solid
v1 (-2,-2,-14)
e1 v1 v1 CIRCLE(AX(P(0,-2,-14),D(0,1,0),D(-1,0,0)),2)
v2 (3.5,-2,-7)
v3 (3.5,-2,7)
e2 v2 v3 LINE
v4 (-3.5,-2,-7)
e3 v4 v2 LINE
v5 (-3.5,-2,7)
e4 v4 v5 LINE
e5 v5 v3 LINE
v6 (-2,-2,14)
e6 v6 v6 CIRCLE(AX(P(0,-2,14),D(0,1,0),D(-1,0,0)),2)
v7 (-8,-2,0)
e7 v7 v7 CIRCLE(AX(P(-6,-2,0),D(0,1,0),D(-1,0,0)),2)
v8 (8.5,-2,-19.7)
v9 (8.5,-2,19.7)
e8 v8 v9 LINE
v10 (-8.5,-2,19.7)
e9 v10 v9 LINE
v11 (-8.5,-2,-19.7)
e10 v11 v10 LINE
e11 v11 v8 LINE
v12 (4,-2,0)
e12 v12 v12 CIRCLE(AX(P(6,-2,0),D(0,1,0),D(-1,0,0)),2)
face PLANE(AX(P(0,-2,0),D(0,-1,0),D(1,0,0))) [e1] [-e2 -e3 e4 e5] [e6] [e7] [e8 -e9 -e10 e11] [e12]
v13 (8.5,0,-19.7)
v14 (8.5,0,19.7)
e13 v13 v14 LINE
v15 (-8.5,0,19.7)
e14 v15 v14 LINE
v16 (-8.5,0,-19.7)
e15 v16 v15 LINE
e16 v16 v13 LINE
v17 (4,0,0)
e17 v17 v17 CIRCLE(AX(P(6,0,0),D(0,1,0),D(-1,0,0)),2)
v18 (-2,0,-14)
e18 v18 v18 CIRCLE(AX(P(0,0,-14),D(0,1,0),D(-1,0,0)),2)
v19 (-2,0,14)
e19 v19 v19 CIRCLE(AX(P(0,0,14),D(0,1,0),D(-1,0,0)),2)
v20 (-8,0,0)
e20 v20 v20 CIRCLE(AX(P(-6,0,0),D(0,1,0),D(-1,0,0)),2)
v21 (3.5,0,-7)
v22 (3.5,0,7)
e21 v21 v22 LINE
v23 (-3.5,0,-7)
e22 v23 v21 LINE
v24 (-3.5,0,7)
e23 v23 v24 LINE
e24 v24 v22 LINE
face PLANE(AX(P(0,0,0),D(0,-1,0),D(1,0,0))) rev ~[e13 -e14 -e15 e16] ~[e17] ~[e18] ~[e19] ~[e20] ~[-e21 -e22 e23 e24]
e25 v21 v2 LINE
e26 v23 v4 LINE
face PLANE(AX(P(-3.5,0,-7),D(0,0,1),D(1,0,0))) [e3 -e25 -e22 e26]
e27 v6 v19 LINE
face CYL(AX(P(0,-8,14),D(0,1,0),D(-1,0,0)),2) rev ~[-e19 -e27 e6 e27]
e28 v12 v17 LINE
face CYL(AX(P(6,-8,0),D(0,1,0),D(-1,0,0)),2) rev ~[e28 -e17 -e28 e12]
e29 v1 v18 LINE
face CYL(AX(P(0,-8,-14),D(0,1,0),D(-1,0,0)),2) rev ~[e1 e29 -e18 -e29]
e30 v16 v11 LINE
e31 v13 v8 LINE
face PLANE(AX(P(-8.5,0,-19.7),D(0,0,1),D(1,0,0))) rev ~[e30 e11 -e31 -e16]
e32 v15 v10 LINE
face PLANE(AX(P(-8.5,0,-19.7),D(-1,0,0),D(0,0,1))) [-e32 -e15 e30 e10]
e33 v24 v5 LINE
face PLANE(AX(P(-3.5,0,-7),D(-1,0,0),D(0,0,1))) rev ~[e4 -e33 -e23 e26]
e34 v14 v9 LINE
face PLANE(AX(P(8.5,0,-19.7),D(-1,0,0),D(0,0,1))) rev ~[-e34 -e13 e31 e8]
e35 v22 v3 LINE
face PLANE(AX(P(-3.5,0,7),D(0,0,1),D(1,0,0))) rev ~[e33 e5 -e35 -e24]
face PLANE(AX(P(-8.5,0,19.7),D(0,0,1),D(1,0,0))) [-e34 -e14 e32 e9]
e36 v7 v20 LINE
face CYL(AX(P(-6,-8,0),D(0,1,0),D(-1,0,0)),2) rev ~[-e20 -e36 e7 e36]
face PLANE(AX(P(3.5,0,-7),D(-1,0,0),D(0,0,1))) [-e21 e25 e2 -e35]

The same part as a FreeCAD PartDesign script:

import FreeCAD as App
import Part
import Sketcher
from FreeCAD import Vector
Q = App.Units.Quantity

doc = App.newDocument("Part")
body = doc.addObject("PartDesign::Body", "Body")

# Sketch on XZ plane
sketch1 = body.newObject("Sketcher::SketchObject", "Sketch")
sketch1.AttachmentSupport = (doc.getObject("XZ_Plane"), [""])
sketch1.MapMode = "FlatFace"
sketch1.addGeometry([
    Part.LineSegment(Vector(-8.5, 19.7, 0), Vector(-8.5, -19.7, 0)),  # 0
    Part.LineSegment(Vector(-8.5, -19.7, 0), Vector(8.5, -19.7, 0)),  # 1
    Part.LineSegment(Vector(8.5, -19.7, 0), Vector(8.5, 19.7, 0)),  # 2
    Part.LineSegment(Vector(8.5, 19.7, 0), Vector(-8.5, 19.7, 0)),  # 3
    Part.LineSegment(Vector(3.5, -7, 0), Vector(-3.5, -7, 0)),  # 4
    Part.LineSegment(Vector(-3.5, -7, 0), Vector(-3.5, 7, 0)),  # 5
    Part.LineSegment(Vector(-3.5, 7, 0), Vector(3.5, 7, 0)),  # 6
    Part.LineSegment(Vector(3.5, 7, 0), Vector(3.5, -7, 0)),  # 7
], False)
sketch1.addConstraint([
    Sketcher.Constraint("Coincident", 0, 2, 1, 1),
    Sketcher.Constraint("Coincident", 1, 2, 2, 1),
    Sketcher.Constraint("Coincident", 2, 2, 3, 1),
    Sketcher.Constraint("Coincident", 3, 2, 0, 1),
    Sketcher.Constraint("Coincident", 4, 2, 5, 1),
    Sketcher.Constraint("Coincident", 5, 2, 6, 1),
    Sketcher.Constraint("Coincident", 6, 2, 7, 1),
    Sketcher.Constraint("Coincident", 7, 2, 4, 1),
    Sketcher.Constraint("Vertical", 0),
    Sketcher.Constraint("Horizontal", 1),
    Sketcher.Constraint("Vertical", 2),
    Sketcher.Constraint("Horizontal", 3),
    Sketcher.Constraint("Horizontal", 4),
    Sketcher.Constraint("Vertical", 5),
    Sketcher.Constraint("Horizontal", 6),
    Sketcher.Constraint("Vertical", 7),
    Sketcher.Constraint("Symmetric", 0, 2, 2, 2, -1, 1),
    Sketcher.Constraint("Symmetric", 4, 2, 6, 2, -1, 1),
    Sketcher.Constraint("DistanceX", 1, 1, 1, 2, Q("17 mm")),
    Sketcher.Constraint("DistanceX", 4, 2, 4, 1, Q("7 mm")),
    Sketcher.Constraint("DistanceY", 5, 1, 5, 2, Q("14 mm")),
    Sketcher.Constraint("DistanceY", 0, 2, 0, 1, Q("39.4 mm")),
])
pad1 = body.newObject("PartDesign::Pad", "Pad")
pad1.Profile = sketch1
pad1.Length = 2

# Sketch on XZ plane
sketch2 = body.newObject("Sketcher::SketchObject", "Sketch001")
sketch2.AttachmentSupport = (doc.getObject("XZ_Plane"), [""])
sketch2.MapMode = "FlatFace"
sketch2.AttachmentOffset = App.Placement(Vector(0, 0, 2), App.Rotation())
sketch2.addGeometry([
    Part.Circle(Vector(-6, 0, 0), Vector(0, 0, 1), 2),
    Part.Circle(Vector(6, 0, 0), Vector(0, 0, 1), 2),
    Part.Circle(Vector(0, 14, 0), Vector(0, 0, 1), 2),
    Part.Circle(Vector(0, -14, 0), Vector(0, 0, 1), 2),
], False)
sketch2.addConstraint([
    Sketcher.Constraint("Equal", 0, 1),
    Sketcher.Constraint("Equal", 1, 2),
    Sketcher.Constraint("Equal", 2, 3),
    Sketcher.Constraint("Symmetric", 0, 3, 1, 3, -1, 1),
    Sketcher.Constraint("Symmetric", 2, 3, 3, 3, -1, 1),
    Sketcher.Constraint("PointOnObject", 0, 3, -1),
    Sketcher.Constraint("PointOnObject", 2, 3, -2),
    Sketcher.Constraint("Diameter", 0, Q("4 mm")),
    Sketcher.Constraint("DistanceX", 0, 3, -1, 1, Q("6 mm")),
    Sketcher.Constraint("DistanceY", -1, 1, 2, 3, Q("14 mm")),
])
doc.recompute()
hole = body.newObject("PartDesign::Hole", "Hole")
hole.Profile = sketch2
hole.ThreadType = "None"
hole.Diameter = 4
hole.DepthType = "Dimension"
hole.Depth = 6
hole.DrillPoint = "Flat"

doc.recompute()
